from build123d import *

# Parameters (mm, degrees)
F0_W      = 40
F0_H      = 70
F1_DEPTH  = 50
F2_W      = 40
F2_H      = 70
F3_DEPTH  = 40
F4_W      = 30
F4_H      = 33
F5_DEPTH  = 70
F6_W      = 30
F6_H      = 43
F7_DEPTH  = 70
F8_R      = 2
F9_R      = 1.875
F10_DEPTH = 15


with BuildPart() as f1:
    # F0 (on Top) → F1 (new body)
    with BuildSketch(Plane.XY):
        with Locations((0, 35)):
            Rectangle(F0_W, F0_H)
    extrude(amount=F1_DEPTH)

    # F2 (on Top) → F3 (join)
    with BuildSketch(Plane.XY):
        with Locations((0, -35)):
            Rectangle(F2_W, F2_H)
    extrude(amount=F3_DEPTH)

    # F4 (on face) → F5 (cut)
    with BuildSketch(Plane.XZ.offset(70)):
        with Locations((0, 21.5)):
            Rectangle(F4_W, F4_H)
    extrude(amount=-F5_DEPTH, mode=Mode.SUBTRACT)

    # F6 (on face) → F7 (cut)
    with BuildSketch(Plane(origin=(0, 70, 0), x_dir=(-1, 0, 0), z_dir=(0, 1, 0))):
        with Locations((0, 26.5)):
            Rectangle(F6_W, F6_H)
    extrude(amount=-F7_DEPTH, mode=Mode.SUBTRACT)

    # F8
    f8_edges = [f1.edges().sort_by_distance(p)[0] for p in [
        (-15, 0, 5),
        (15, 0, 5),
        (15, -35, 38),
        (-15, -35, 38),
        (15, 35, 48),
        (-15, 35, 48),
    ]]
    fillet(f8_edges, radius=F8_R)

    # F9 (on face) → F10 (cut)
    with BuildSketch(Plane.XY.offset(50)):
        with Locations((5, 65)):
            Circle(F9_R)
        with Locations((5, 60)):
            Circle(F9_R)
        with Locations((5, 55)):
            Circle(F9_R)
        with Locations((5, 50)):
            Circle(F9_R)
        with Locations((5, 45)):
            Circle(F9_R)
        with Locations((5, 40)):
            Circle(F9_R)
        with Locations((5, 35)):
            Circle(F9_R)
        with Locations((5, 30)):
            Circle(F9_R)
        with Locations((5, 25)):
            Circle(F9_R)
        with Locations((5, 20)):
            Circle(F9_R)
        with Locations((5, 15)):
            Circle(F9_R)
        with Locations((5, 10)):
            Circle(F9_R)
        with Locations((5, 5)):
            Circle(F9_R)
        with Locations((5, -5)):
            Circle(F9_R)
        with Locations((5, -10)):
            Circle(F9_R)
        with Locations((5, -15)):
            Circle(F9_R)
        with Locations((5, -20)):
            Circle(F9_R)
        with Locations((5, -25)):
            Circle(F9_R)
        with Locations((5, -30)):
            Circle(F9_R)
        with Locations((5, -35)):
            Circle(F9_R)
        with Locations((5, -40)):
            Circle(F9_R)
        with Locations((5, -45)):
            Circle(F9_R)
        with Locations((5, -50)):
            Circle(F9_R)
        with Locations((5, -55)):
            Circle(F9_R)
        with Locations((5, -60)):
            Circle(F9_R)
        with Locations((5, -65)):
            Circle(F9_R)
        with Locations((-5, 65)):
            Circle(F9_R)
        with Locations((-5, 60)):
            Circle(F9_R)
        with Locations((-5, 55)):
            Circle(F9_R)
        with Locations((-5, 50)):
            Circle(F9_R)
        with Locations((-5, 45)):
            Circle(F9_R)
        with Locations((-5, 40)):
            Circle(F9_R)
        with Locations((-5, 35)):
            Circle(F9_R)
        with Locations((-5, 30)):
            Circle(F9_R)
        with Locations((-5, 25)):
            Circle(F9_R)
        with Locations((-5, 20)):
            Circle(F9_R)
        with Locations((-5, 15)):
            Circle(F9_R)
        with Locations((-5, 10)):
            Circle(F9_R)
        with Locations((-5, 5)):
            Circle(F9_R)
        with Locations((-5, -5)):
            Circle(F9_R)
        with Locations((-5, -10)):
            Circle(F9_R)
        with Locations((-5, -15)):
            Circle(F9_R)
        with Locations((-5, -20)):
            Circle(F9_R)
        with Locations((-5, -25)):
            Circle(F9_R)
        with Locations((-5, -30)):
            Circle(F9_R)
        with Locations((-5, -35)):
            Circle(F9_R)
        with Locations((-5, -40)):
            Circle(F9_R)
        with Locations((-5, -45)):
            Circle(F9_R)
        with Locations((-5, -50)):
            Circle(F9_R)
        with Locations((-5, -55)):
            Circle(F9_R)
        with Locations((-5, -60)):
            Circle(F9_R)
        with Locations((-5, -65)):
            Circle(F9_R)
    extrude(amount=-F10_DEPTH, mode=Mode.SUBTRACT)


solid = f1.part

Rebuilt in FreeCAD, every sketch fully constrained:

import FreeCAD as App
import Part
import Sketcher

V = App.Vector
Q = App.Units.Quantity


def edges_at(feature, points):
    """Names of the edges that pass closest to the given points."""
    edges = feature.Shape.Edges
    near = lambda p: min(range(len(edges)), key=lambda i: edges[i].distToShape(Part.Vertex(*p))[0])
    return sorted({f"Edge{near(p) + 1}" for p in points})


def add_polygon(sketch, points):
    """Adds a closed chain of lines whose ends are joined by coincident constraints."""
    first, n = sketch.GeometryCount, len(points)
    for a, b in zip(points, points[1:] + points[:1]):
        sketch.addGeometry(Part.LineSegment(App.Vector(*a, 0), App.Vector(*b, 0)), False)
    for i in range(n):
        sketch.addConstraint(Sketcher.Constraint("Coincident", first + i, 2, first + (i + 1) % n, 1))

doc = App.newDocument("Part")
params = doc.addObject("Spreadsheet::Sheet", "Params")
for row, (alias, value) in enumerate([
    ("sketch1_width", "40 mm"),
    ("sketch1_height", "70 mm"),
    ("pad1_length", "50 mm"),
    ("sketch2_width", "40 mm"),
    ("sketch2_height", "70 mm"),
    ("pad2_length", "40 mm"),
    ("sketch3_width", "30 mm"),
    ("sketch3_height", "33 mm"),
    ("pocket1_length", "70 mm"),
    ("sketch4_width", "30 mm"),
    ("sketch4_height", "43 mm"),
    ("pocket2_length", "70 mm"),
    ("fillet_radius", "2 mm"),
    ("sketch5_diameter", "3.75 mm"),
    ("pocket3_length", "15 mm"),
], start=1):
    params.set(f"A{row}", alias)
    params.set(f"B{row}", "=" + value)
    params.setAlias(f"B{row}", alias)

body = doc.addObject("PartDesign::Body", "Body")

sketch1 = body.newObject("Sketcher::SketchObject", "Sketch")
sketch1.AttachmentSupport = (doc.getObject("XY_Plane"), [""])
sketch1.MapMode = "FlatFace"
add_polygon(sketch1, [(-20, 70), (-20, 0), (20, 0), (20, 70)])
sketch1.addConstraint(Sketcher.Constraint("Vertical", 0))
sketch1.addConstraint(Sketcher.Constraint("Horizontal", 1))
sketch1.addConstraint(Sketcher.Constraint("Vertical", 2))
sketch1.addConstraint(Sketcher.Constraint("Horizontal", 3))
sketch1.addConstraint(Sketcher.Constraint("Symmetric", 0, 2, 1, 2, -1, 1))
sketch1.addConstraint(Sketcher.Constraint("DistanceX", 1, 1, 1, 2, Q("40 mm")))
sketch1.addConstraint(Sketcher.Constraint("DistanceY", 0, 2, 0, 1, Q("70 mm")))
sketch1.setExpression("Constraints[9]", "Params.sketch1_width")
sketch1.setExpression("Constraints[10]", "Params.sketch1_height")
pad1 = body.newObject("PartDesign::Pad", "Pad")
pad1.Profile = sketch1
pad1.setExpression("Length", "Params.pad1_length")

sketch2 = body.newObject("Sketcher::SketchObject", "Sketch001")
sketch2.AttachmentSupport = (doc.getObject("XY_Plane"), [""])
sketch2.MapMode = "FlatFace"
add_polygon(sketch2, [(-20, 0), (-20, -70), (20, -70), (20, 0)])
sketch2.addConstraint(Sketcher.Constraint("Vertical", 0))
sketch2.addConstraint(Sketcher.Constraint("Horizontal", 1))
sketch2.addConstraint(Sketcher.Constraint("Vertical", 2))
sketch2.addConstraint(Sketcher.Constraint("Horizontal", 3))
sketch2.addConstraint(Sketcher.Constraint("Symmetric", 2, 2, 3, 2, -1, 1))
sketch2.addConstraint(Sketcher.Constraint("DistanceX", 1, 1, 1, 2, Q("40 mm")))
sketch2.addConstraint(Sketcher.Constraint("DistanceY", 0, 2, 0, 1, Q("70 mm")))
sketch2.setExpression("Constraints[9]", "Params.sketch2_width")
sketch2.setExpression("Constraints[10]", "Params.sketch2_height")
pad2 = body.newObject("PartDesign::Pad", "Pad001")
pad2.Profile = sketch2
pad2.setExpression("Length", "Params.pad2_length")

sketch3 = body.newObject("Sketcher::SketchObject", "Sketch002")
sketch3.AttachmentSupport = (doc.getObject("XZ_Plane"), [""])
sketch3.MapMode = "FlatFace"
sketch3.AttachmentOffset = App.Placement(V(0, 0, 70), App.Rotation())
add_polygon(sketch3, [(-15, 38), (-15, 5), (15, 5), (15, 38)])
sketch3.addConstraint(Sketcher.Constraint("Vertical", 0))
sketch3.addConstraint(Sketcher.Constraint("Horizontal", 1))
sketch3.addConstraint(Sketcher.Constraint("Vertical", 2))
sketch3.addConstraint(Sketcher.Constraint("Horizontal", 3))
sketch3.addConstraint(Sketcher.Constraint("DistanceX", 1, 1, 1, 2, Q("30 mm")))
sketch3.addConstraint(Sketcher.Constraint("DistanceY", 0, 2, 0, 1, Q("33 mm")))
sketch3.addConstraint(Sketcher.Constraint("DistanceX", 0, 2, -1, 1, Q("15 mm")))
sketch3.addConstraint(Sketcher.Constraint("DistanceY", -1, 1, 0, 2, Q("5 mm")))
sketch3.setExpression("Constraints[8]", "Params.sketch3_width")
sketch3.setExpression("Constraints[9]", "Params.sketch3_height")
pocket1 = body.newObject("PartDesign::Pocket", "Pocket")
pocket1.Profile = sketch3
pocket1.setExpression("Length", "Params.pocket1_length")

sketch4 = body.newObject("Sketcher::SketchObject", "Sketch003")
sketch4.AttachmentSupport = (doc.getObject("XZ_Plane"), [""])
sketch4.MapMode = "FlatFace"
sketch4.AttachmentOffset = App.Placement(V(0, 0, -70), App.Rotation())
add_polygon(sketch4, [(15, 48), (15, 5), (-15, 5), (-15, 48)])
sketch4.addConstraint(Sketcher.Constraint("Vertical", 0))
sketch4.addConstraint(Sketcher.Constraint("Horizontal", 1))
sketch4.addConstraint(Sketcher.Constraint("Vertical", 2))
sketch4.addConstraint(Sketcher.Constraint("Horizontal", 3))
sketch4.addConstraint(Sketcher.Constraint("DistanceX", 1, 2, 1, 1, Q("30 mm")))
sketch4.addConstraint(Sketcher.Constraint("DistanceY", 0, 2, 0, 1, Q("43 mm")))
sketch4.addConstraint(Sketcher.Constraint("DistanceX", -1, 1, 0, 2, Q("15 mm")))
sketch4.addConstraint(Sketcher.Constraint("DistanceY", -1, 1, 0, 2, Q("5 mm")))
sketch4.setExpression("Constraints[8]", "Params.sketch4_width")
sketch4.setExpression("Constraints[9]", "Params.sketch4_height")
pocket2 = body.newObject("PartDesign::Pocket", "Pocket001")
pocket2.Profile = sketch4
pocket2.setExpression("Length", "Params.pocket2_length")
pocket2.Reversed = True
doc.recompute()

fillet = body.newObject("PartDesign::Fillet", "Fillet")
fillet.Base = (pocket2, edges_at(pocket2, [
    (-15, 0, 5),
    (15, 0, 5),
    (15, -35, 38),
    (-15, -35, 38),
    (15, 35, 48),
    (-15, 35, 48),
]))
fillet.setExpression("Radius", "Params.fillet_radius")

sketch5 = body.newObject("Sketcher::SketchObject", "Sketch004")
sketch5.AttachmentSupport = (doc.getObject("XY_Plane"), [""])
sketch5.MapMode = "FlatFace"
sketch5.AttachmentOffset = App.Placement(V(0, 0, 50), App.Rotation())
sketch5.addGeometry(Part.Circle(V(5, 65, 0), V(0, 0, 1), 1.9), False)
sketch5.addGeometry(Part.Circle(V(5, 60, 0), V(0, 0, 1), 1.9), False)
sketch5.addGeometry(Part.Circle(V(5, 55, 0), V(0, 0, 1), 1.9), False)
sketch5.addGeometry(Part.Circle(V(5, 50, 0), V(0, 0, 1), 1.9), False)
sketch5.addGeometry(Part.Circle(V(5, 45, 0), V(0, 0, 1), 1.9), False)
sketch5.addGeometry(Part.Circle(V(5, 40, 0), V(0, 0, 1), 1.9), False)
sketch5.addGeometry(Part.Circle(V(5, 35, 0), V(0, 0, 1), 1.9), False)
sketch5.addGeometry(Part.Circle(V(5, 30, 0), V(0, 0, 1), 1.9), False)
sketch5.addGeometry(Part.Circle(V(5, 25, 0), V(0, 0, 1), 1.9), False)
sketch5.addGeometry(Part.Circle(V(5, 20, 0), V(0, 0, 1), 1.9), False)
sketch5.addGeometry(Part.Circle(V(5, 15, 0), V(0, 0, 1), 1.9), False)
sketch5.addGeometry(Part.Circle(V(5, 10, 0), V(0, 0, 1), 1.9), False)
sketch5.addGeometry(Part.Circle(V(5, 5, 0), V(0, 0, 1), 1.9), False)
sketch5.addGeometry(Part.Circle(V(5, -5, 0), V(0, 0, 1), 1.9), False)
sketch5.addGeometry(Part.Circle(V(5, -10, 0), V(0, 0, 1), 1.9), False)
sketch5.addGeometry(Part.Circle(V(5, -15, 0), V(0, 0, 1), 1.9), False)
sketch5.addGeometry(Part.Circle(V(5, -20, 0), V(0, 0, 1), 1.9), False)
sketch5.addGeometry(Part.Circle(V(5, -25, 0), V(0, 0, 1), 1.9), False)
sketch5.addGeometry(Part.Circle(V(5, -30, 0), V(0, 0, 1), 1.9), False)
sketch5.addGeometry(Part.Circle(V(5, -35, 0), V(0, 0, 1), 1.9), False)
sketch5.addGeometry(Part.Circle(V(5, -40, 0), V(0, 0, 1), 1.9), False)
sketch5.addGeometry(Part.Circle(V(5, -45, 0), V(0, 0, 1), 1.9), False)
sketch5.addGeometry(Part.Circle(V(5, -50, 0), V(0, 0, 1), 1.9), False)
sketch5.addGeometry(Part.Circle(V(5, -55, 0), V(0, 0, 1), 1.9), False)
sketch5.addGeometry(Part.Circle(V(5, -60, 0), V(0, 0, 1), 1.9), False)
sketch5.addGeometry(Part.Circle(V(5, -65, 0), V(0, 0, 1), 1.9), False)
sketch5.addGeometry(Part.Circle(V(-5, 65, 0), V(0, 0, 1), 1.9), False)
sketch5.addGeometry(Part.Circle(V(-5, 60, 0), V(0, 0, 1), 1.9), False)
sketch5.addGeometry(Part.Circle(V(-5, 55, 0), V(0, 0, 1), 1.9), False)
sketch5.addGeometry(Part.Circle(V(-5, 50, 0), V(0, 0, 1), 1.9), False)
sketch5.addGeometry(Part.Circle(V(-5, 45, 0), V(0, 0, 1), 1.9), False)
sketch5.addGeometry(Part.Circle(V(-5, 40, 0), V(0, 0, 1), 1.9), False)
sketch5.addGeometry(Part.Circle(V(-5, 35, 0), V(0, 0, 1), 1.9), False)
sketch5.addGeometry(Part.Circle(V(-5, 30, 0), V(0, 0, 1), 1.9), False)
sketch5.addGeometry(Part.Circle(V(-5, 25, 0), V(0, 0, 1), 1.9), False)
sketch5.addGeometry(Part.Circle(V(-5, 20, 0), V(0, 0, 1), 1.9), False)
sketch5.addGeometry(Part.Circle(V(-5, 15, 0), V(0, 0, 1), 1.9), False)
sketch5.addGeometry(Part.Circle(V(-5, 10, 0), V(0, 0, 1), 1.9), False)
sketch5.addGeometry(Part.Circle(V(-5, 5, 0), V(0, 0, 1), 1.9), False)
sketch5.addGeometry(Part.Circle(V(-5, -5, 0), V(0, 0, 1), 1.9), False)
sketch5.addGeometry(Part.Circle(V(-5, -10, 0), V(0, 0, 1), 1.9), False)
sketch5.addGeometry(Part.Circle(V(-5, -15, 0), V(0, 0, 1), 1.9), False)
sketch5.addGeometry(Part.Circle(V(-5, -20, 0), V(0, 0, 1), 1.9), False)
sketch5.addGeometry(Part.Circle(V(-5, -25, 0), V(0, 0, 1), 1.9), False)
sketch5.addGeometry(Part.Circle(V(-5, -30, 0), V(0, 0, 1), 1.9), False)
sketch5.addGeometry(Part.Circle(V(-5, -35, 0), V(0, 0, 1), 1.9), False)
sketch5.addGeometry(Part.Circle(V(-5, -40, 0), V(0, 0, 1), 1.9), False)
sketch5.addGeometry(Part.Circle(V(-5, -45, 0), V(0, 0, 1), 1.9), False)
sketch5.addGeometry(Part.Circle(V(-5, -50, 0), V(0, 0, 1), 1.9), False)
sketch5.addGeometry(Part.Circle(V(-5, -55, 0), V(0, 0, 1), 1.9), False)
sketch5.addGeometry(Part.Circle(V(-5, -60, 0), V(0, 0, 1), 1.9), False)
sketch5.addGeometry(Part.Circle(V(-5, -65, 0), V(0, 0, 1), 1.9), False)
sketch5.addConstraint(Sketcher.Constraint("Equal", 0, 1))
sketch5.addConstraint(Sketcher.Constraint("Equal", 1, 2))
sketch5.addConstraint(Sketcher.Constraint("Equal", 2, 3))
sketch5.addConstraint(Sketcher.Constraint("Equal", 3, 4))
sketch5.addConstraint(Sketcher.Constraint("Equal", 4, 5))
sketch5.addConstraint(Sketcher.Constraint("Equal", 5, 6))
sketch5.addConstraint(Sketcher.Constraint("Equal", 6, 7))
sketch5.addConstraint(Sketcher.Constraint("Equal", 7, 8))
sketch5.addConstraint(Sketcher.Constraint("Equal", 8, 9))
sketch5.addConstraint(Sketcher.Constraint("Equal", 9, 10))
sketch5.addConstraint(Sketcher.Constraint("Equal", 10, 11))
sketch5.addConstraint(Sketcher.Constraint("Equal", 11, 12))
sketch5.addConstraint(Sketcher.Constraint("Equal", 12, 13))
sketch5.addConstraint(Sketcher.Constraint("Equal", 13, 14))
sketch5.addConstraint(Sketcher.Constraint("Equal", 14, 15))
sketch5.addConstraint(Sketcher.Constraint("Equal", 15, 16))
sketch5.addConstraint(Sketcher.Constraint("Equal", 16, 17))
sketch5.addConstraint(Sketcher.Constraint("Equal", 17, 18))
sketch5.addConstraint(Sketcher.Constraint("Equal", 18, 19))
sketch5.addConstraint(Sketcher.Constraint("Equal", 19, 20))
sketch5.addConstraint(Sketcher.Constraint("Equal", 20, 21))
sketch5.addConstraint(Sketcher.Constraint("Equal", 21, 22))
sketch5.addConstraint(Sketcher.Constraint("Equal", 22, 23))
sketch5.addConstraint(Sketcher.Constraint("Equal", 23, 24))
sketch5.addConstraint(Sketcher.Constraint("Equal", 24, 25))
sketch5.addConstraint(Sketcher.Constraint("Equal", 25, 26))
sketch5.addConstraint(Sketcher.Constraint("Equal", 26, 27))
sketch5.addConstraint(Sketcher.Constraint("Equal", 27, 28))
sketch5.addConstraint(Sketcher.Constraint("Equal", 28, 29))
sketch5.addConstraint(Sketcher.Constraint("Equal", 29, 30))
sketch5.addConstraint(Sketcher.Constraint("Equal", 30, 31))
sketch5.addConstraint(Sketcher.Constraint("Equal", 31, 32))
sketch5.addConstraint(Sketcher.Constraint("Equal", 32, 33))
sketch5.addConstraint(Sketcher.Constraint("Equal", 33, 34))
sketch5.addConstraint(Sketcher.Constraint("Equal", 34, 35))
sketch5.addConstraint(Sketcher.Constraint("Equal", 35, 36))
sketch5.addConstraint(Sketcher.Constraint("Equal", 36, 37))
sketch5.addConstraint(Sketcher.Constraint("Equal", 37, 38))
sketch5.addConstraint(Sketcher.Constraint("Equal", 38, 39))
sketch5.addConstraint(Sketcher.Constraint("Equal", 39, 40))
sketch5.addConstraint(Sketcher.Constraint("Equal", 40, 41))
sketch5.addConstraint(Sketcher.Constraint("Equal", 41, 42))
sketch5.addConstraint(Sketcher.Constraint("Equal", 42, 43))
sketch5.addConstraint(Sketcher.Constraint("Equal", 43, 44))
sketch5.addConstraint(Sketcher.Constraint("Equal", 44, 45))
sketch5.addConstraint(Sketcher.Constraint("Equal", 45, 46))
sketch5.addConstraint(Sketcher.Constraint("Equal", 46, 47))
sketch5.addConstraint(Sketcher.Constraint("Equal", 47, 48))
sketch5.addConstraint(Sketcher.Constraint("Equal", 48, 49))
sketch5.addConstraint(Sketcher.Constraint("Equal", 49, 50))
sketch5.addConstraint(Sketcher.Constraint("Equal", 50, 51))
sketch5.addConstraint(Sketcher.Constraint("Symmetric", 25, 3, 26, 3, -1, 1))
sketch5.addConstraint(Sketcher.Constraint("Symmetric", 24, 3, 27, 3, -1, 1))
sketch5.addConstraint(Sketcher.Constraint("Symmetric", 23, 3, 28, 3, -1, 1))
sketch5.addConstraint(Sketcher.Constraint("Symmetric", 22, 3, 29, 3, -1, 1))
sketch5.addConstraint(Sketcher.Constraint("Symmetric", 21, 3, 30, 3, -1, 1))
sketch5.addConstraint(Sketcher.Constraint("Symmetric", 20, 3, 31, 3, -1, 1))
sketch5.addConstraint(Sketcher.Constraint("Symmetric", 19, 3, 32, 3, -1, 1))
sketch5.addConstraint(Sketcher.Constraint("Symmetric", 18, 3, 33, 3, -1, 1))
sketch5.addConstraint(Sketcher.Constraint("Symmetric", 17, 3, 34, 3, -1, 1))
sketch5.addConstraint(Sketcher.Constraint("Symmetric", 16, 3, 35, 3, -1, 1))
sketch5.addConstraint(Sketcher.Constraint("Symmetric", 15, 3, 36, 3, -1, 1))
sketch5.addConstraint(Sketcher.Constraint("Symmetric", 14, 3, 37, 3, -1, 1))
sketch5.addConstraint(Sketcher.Constraint("Symmetric", 13, 3, 38, 3, -1, 1))
sketch5.addConstraint(Sketcher.Constraint("Symmetric", 12, 3, 39, 3, -1, 1))
sketch5.addConstraint(Sketcher.Constraint("Symmetric", 11, 3, 40, 3, -1, 1))
sketch5.addConstraint(Sketcher.Constraint("Symmetric", 10, 3, 41, 3, -1, 1))
sketch5.addConstraint(Sketcher.Constraint("Symmetric", 9, 3, 42, 3, -1, 1))
sketch5.addConstraint(Sketcher.Constraint("Symmetric", 8, 3, 43, 3, -1, 1))
sketch5.addConstraint(Sketcher.Constraint("Symmetric", 7, 3, 44, 3, -1, 1))
sketch5.addConstraint(Sketcher.Constraint("Symmetric", 6, 3, 45, 3, -1, 1))
sketch5.addConstraint(Sketcher.Constraint("Symmetric", 5, 3, 46, 3, -1, 1))
sketch5.addConstraint(Sketcher.Constraint("Symmetric", 4, 3, 47, 3, -1, 1))
sketch5.addConstraint(Sketcher.Constraint("Symmetric", 3, 3, 48, 3, -1, 1))
sketch5.addConstraint(Sketcher.Constraint("Symmetric", 2, 3, 49, 3, -1, 1))
sketch5.addConstraint(Sketcher.Constraint("Symmetric", 1, 3, 50, 3, -1, 1))
sketch5.addConstraint(Sketcher.Constraint("Symmetric", 0, 3, 51, 3, -1, 1))
sketch5.addConstraint(Sketcher.Constraint("Symmetric", 0, 3, 26, 3, -2))
sketch5.addConstraint(Sketcher.Constraint("Symmetric", 1, 3, 27, 3, -2))
sketch5.addConstraint(Sketcher.Constraint("Symmetric", 2, 3, 28, 3, -2))
sketch5.addConstraint(Sketcher.Constraint("Symmetric", 3, 3, 29, 3, -2))
sketch5.addConstraint(Sketcher.Constraint("Symmetric", 4, 3, 30, 3, -2))
sketch5.addConstraint(Sketcher.Constraint("Symmetric", 5, 3, 31, 3, -2))
sketch5.addConstraint(Sketcher.Constraint("Symmetric", 6, 3, 32, 3, -2))
sketch5.addConstraint(Sketcher.Constraint("Symmetric", 7, 3, 33, 3, -2))
sketch5.addConstraint(Sketcher.Constraint("Symmetric", 8, 3, 34, 3, -2))
sketch5.addConstraint(Sketcher.Constraint("Symmetric", 9, 3, 35, 3, -2))
sketch5.addConstraint(Sketcher.Constraint("Symmetric", 10, 3, 36, 3, -2))
sketch5.addConstraint(Sketcher.Constraint("Symmetric", 11, 3, 37, 3, -2))
sketch5.addConstraint(Sketcher.Constraint("Symmetric", 12, 3, 38, 3, -2))
sketch5.addConstraint(Sketcher.Constraint("Vertical", 0, 3, 1, 3))
sketch5.addConstraint(Sketcher.Constraint("Vertical", 1, 3, 2, 3))
sketch5.addConstraint(Sketcher.Constraint("Vertical", 2, 3, 3, 3))
sketch5.addConstraint(Sketcher.Constraint("Vertical", 3, 3, 4, 3))
sketch5.addConstraint(Sketcher.Constraint("Vertical", 4, 3, 5, 3))
sketch5.addConstraint(Sketcher.Constraint("Vertical", 5, 3, 6, 3))
sketch5.addConstraint(Sketcher.Constraint("Vertical", 6, 3, 7, 3))
sketch5.addConstraint(Sketcher.Constraint("Vertical", 7, 3, 8, 3))
sketch5.addConstraint(Sketcher.Constraint("Vertical", 8, 3, 9, 3))
sketch5.addConstraint(Sketcher.Constraint("Vertical", 9, 3, 10, 3))
sketch5.addConstraint(Sketcher.Constraint("Vertical", 10, 3, 11, 3))
sketch5.addConstraint(Sketcher.Constraint("Vertical", 11, 3, 12, 3))
sketch5.addConstraint(Sketcher.Constraint("Diameter", 0, Q("3.75 mm")))
sketch5.addConstraint(Sketcher.Constraint("DistanceX", -1, 1, 0, 3, Q("5 mm")))
sketch5.addConstraint(Sketcher.Constraint("DistanceY", -1, 1, 0, 3, Q("65 mm")))
sketch5.addConstraint(Sketcher.Constraint("DistanceY", -1, 1, 1, 3, Q("60 mm")))
sketch5.addConstraint(Sketcher.Constraint("DistanceY", -1, 1, 2, 3, Q("55 mm")))
sketch5.addConstraint(Sketcher.Constraint("DistanceY", -1, 1, 3, 3, Q("50 mm")))
sketch5.addConstraint(Sketcher.Constraint("DistanceY", -1, 1, 4, 3, Q("45 mm")))
sketch5.addConstraint(Sketcher.Constraint("DistanceY", -1, 1, 5, 3, Q("40 mm")))
sketch5.addConstraint(Sketcher.Constraint("DistanceY", -1, 1, 6, 3, Q("35 mm")))
sketch5.addConstraint(Sketcher.Constraint("DistanceY", -1, 1, 7, 3, Q("30 mm")))
sketch5.addConstraint(Sketcher.Constraint("DistanceY", -1, 1, 8, 3, Q("25 mm")))
sketch5.addConstraint(Sketcher.Constraint("DistanceY", -1, 1, 9, 3, Q("20 mm")))
sketch5.addConstraint(Sketcher.Constraint("DistanceY", -1, 1, 10, 3, Q("15 mm")))
sketch5.addConstraint(Sketcher.Constraint("DistanceY", -1, 1, 11, 3, Q("10 mm")))
sketch5.addConstraint(Sketcher.Constraint("DistanceY", -1, 1, 12, 3, Q("5 mm")))
sketch5.setExpression("Constraints[102]", "Params.sketch5_diameter")
pocket3 = body.newObject("PartDesign::Pocket", "Pocket002")
pocket3.Profile = sketch5
pocket3.setExpression("Length", "Params.pocket3_length")

doc.recompute()
